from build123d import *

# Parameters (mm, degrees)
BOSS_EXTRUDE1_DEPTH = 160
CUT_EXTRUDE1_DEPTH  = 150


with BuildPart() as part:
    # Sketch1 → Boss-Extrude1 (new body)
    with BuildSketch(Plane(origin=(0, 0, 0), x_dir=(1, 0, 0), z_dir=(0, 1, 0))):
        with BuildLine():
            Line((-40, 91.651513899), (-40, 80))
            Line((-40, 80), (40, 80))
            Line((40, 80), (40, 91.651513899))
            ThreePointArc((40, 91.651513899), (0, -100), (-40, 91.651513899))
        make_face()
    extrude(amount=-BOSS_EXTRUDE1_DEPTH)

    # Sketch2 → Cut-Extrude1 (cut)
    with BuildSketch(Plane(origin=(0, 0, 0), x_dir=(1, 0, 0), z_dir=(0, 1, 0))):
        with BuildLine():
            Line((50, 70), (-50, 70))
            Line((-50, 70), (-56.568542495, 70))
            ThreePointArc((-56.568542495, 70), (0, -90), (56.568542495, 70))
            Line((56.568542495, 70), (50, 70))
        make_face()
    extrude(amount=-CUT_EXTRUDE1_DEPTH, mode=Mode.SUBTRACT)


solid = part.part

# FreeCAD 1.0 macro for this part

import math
import FreeCAD as App
import Part
import Sketcher

V = App.Vector
Q = App.Units.Quantity

doc = App.newDocument("Part")
body = doc.addObject("PartDesign::Body", "Body")

sketch1 = doc.addObject("Sketcher::SketchObject", "Sketch")
body.addObject(sketch1)
sketch1.AttachmentSupport = (doc.XZ_Plane, [""])
sketch1.MapMode = "FlatFace"
sketch1.addGeometry([
    Part.LineSegment(V(-40, -80, 0), V(-40, -92, 0)),
    Part.ArcOfCircle(Part.Circle(V(0, 0, 0), V(0, 0, 1), 100), math.radians(-66), math.radians(246)),
    Part.LineSegment(V(40, -92, 0), V(40, -80, 0)),
    Part.LineSegment(V(40, -80, 0), V(-40, -80, 0)),
], False)
sketch1.addConstraint([
    Sketcher.Constraint("Coincident", 0, 2, 1, 2),
    Sketcher.Constraint("Coincident", 1, 1, 2, 1),
    Sketcher.Constraint("Coincident", 2, 2, 3, 1),
    Sketcher.Constraint("Coincident", 3, 2, 0, 1),
    Sketcher.Constraint("Vertical", 0),
    Sketcher.Constraint("Vertical", 2),
    Sketcher.Constraint("Horizontal", 3),
    Sketcher.Constraint("Coincident", 1, 3, -1, 1),
    Sketcher.Constraint("Horizontal", 0, 2, 1, 1),
    Sketcher.Constraint("Radius", 1, Q("100 mm")),
    Sketcher.Constraint("DistanceX", 3, 2, 3, 1, Q("80 mm")),
    Sketcher.Constraint("DistanceY", 2, 2, -1, 1, Q("80 mm")),
])
pad1 = doc.addObject("PartDesign::Pad", "Pad")
body.addObject(pad1)
pad1.Profile = sketch1
pad1.Length = 160

sketch2 = doc.addObject("Sketcher::SketchObject", "Sketch001")
body.addObject(sketch2)
sketch2.AttachmentSupport = (doc.XZ_Plane, [""])
sketch2.MapMode = "FlatFace"
sketch2.addGeometry([
    Part.ArcOfCircle(Part.Circle(V(0, 0, 0), V(0, 0, 1), 90), math.radians(-51), math.radians(231)),
    Part.LineSegment(V(57, -70, 0), V(-57, -70, 0)),
], False)
sketch2.addConstraint([
    Sketcher.Constraint("Coincident", 0, 1, 1, 1),
    Sketcher.Constraint("Coincident", 1, 2, 0, 2),
    Sketcher.Constraint("Horizontal", 1),
    Sketcher.Constraint("Coincident", 0, 3, -1, 1),
    Sketcher.Constraint("Radius", 0, Q("90 mm")),
    Sketcher.Constraint("DistanceY", 0, 1, -1, 1, Q("70 mm")),
])
pocket1 = doc.addObject("PartDesign::Pocket", "Pocket")
body.addObject(pocket1)
pocket1.Profile = sketch2
pocket1.Length = 150
pocket1.Reversed = True

doc.recompute()
